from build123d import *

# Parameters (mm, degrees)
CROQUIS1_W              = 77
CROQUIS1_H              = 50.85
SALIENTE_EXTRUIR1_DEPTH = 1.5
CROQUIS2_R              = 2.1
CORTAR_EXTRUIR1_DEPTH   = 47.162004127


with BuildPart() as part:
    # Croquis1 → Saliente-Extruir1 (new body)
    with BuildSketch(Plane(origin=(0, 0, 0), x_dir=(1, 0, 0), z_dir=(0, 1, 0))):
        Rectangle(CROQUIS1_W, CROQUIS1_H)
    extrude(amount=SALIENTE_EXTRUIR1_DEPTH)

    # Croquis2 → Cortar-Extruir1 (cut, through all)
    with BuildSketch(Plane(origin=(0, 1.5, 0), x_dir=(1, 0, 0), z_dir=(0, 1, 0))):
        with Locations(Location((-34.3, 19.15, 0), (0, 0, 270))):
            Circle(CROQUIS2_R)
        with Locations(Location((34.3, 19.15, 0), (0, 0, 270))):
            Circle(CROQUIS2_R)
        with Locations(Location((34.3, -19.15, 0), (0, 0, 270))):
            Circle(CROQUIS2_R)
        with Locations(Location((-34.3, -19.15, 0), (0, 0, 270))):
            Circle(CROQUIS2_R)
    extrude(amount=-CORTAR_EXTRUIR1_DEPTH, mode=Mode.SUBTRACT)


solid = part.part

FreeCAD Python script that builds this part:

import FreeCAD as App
import Part
import Sketcher
from FreeCAD import Vector
Q = App.Units.Quantity


def add_polygon(sketch, points):
    """Adds a closed chain of lines whose ends are joined by coincident constraints."""
    first, n = sketch.GeometryCount, len(points)
    for a, b in zip(points, points[1:] + points[:1]):
        sketch.addGeometry(Part.LineSegment(App.Vector(*a, 0), App.Vector(*b, 0)), False)
    for i in range(n):
        sketch.addConstraint(Sketcher.Constraint("Coincident", first + i, 2, first + (i + 1) % n, 1))

doc = App.newDocument("Part")
body = doc.addObject("PartDesign::Body", "Body")

sketch1 = doc.addObject("Sketcher::SketchObject", "Sketch")
body.addObject(sketch1)
sketch1.AttachmentSupport = (doc.XZ_Plane, [""])
sketch1.MapMode = "FlatFace"
add_polygon(sketch1, [(-38, -25), (-38, 25), (38, 25), (38, -25)])
sketch1.addConstraint([
    Sketcher.Constraint("Vertical", 0),
    Sketcher.Constraint("Horizontal", 1),
    Sketcher.Constraint("Vertical", 2),
    Sketcher.Constraint("Horizontal", 3),
    Sketcher.Constraint("Symmetric", 0, 2, 2, 2, -1, 1),
    Sketcher.Constraint("DistanceX", 1, 1, 1, 2, Q("77 mm")),
    Sketcher.Constraint("DistanceY", 0, 1, 0, 2, Q("50.85 mm")),
])
pad1 = doc.addObject("PartDesign::Pad", "Pad")
body.addObject(pad1)
pad1.Profile = sketch1
pad1.Length = 1.5
pad1.Reversed = True

sketch2 = doc.addObject("Sketcher::SketchObject", "Sketch001")
body.addObject(sketch2)
sketch2.AttachmentSupport = (doc.XZ_Plane, [""])
sketch2.MapMode = "FlatFace"
sketch2.AttachmentOffset = App.Placement(Vector(0, 0, -1.5), App.Rotation())
sketch2.addGeometry([
    Part.Circle(Vector(-34.3, -19.1, 0), Vector(0, 0, 1), 2.1),
    Part.Circle(Vector(34.3, -19.1, 0), Vector(0, 0, 1), 2.1),
    Part.Circle(Vector(34.3, 19.1, 0), Vector(0, 0, 1), 2.1),
    Part.Circle(Vector(-34.3, 19.1, 0), Vector(0, 0, 1), 2.1),
], False)
sketch2.addConstraint([
    Sketcher.Constraint("Equal", 0, 1),
    Sketcher.Constraint("Equal", 1, 2),
    Sketcher.Constraint("Equal", 2, 3),
    Sketcher.Constraint("Symmetric", 0, 3, 2, 3, -1, 1),
    Sketcher.Constraint("Symmetric", 1, 3, 3, 3, -1, 1),
    Sketcher.Constraint("Symmetric", 0, 3, 1, 3, -2),
    Sketcher.Constraint("Diameter", 0, Q("4.2 mm")),
    Sketcher.Constraint("DistanceX", 0, 3, -1, 1, Q("34.3 mm")),
    Sketcher.Constraint("DistanceY", 1, 3, 2, 3, Q("38.3 mm")),
])
pocket1 = doc.addObject("PartDesign::Pocket", "Pocket")
body.addObject(pocket1)
pocket1.Profile = sketch2
pocket1.Type = "ThroughAll"
pocket1.Reversed = True

doc.recompute()
